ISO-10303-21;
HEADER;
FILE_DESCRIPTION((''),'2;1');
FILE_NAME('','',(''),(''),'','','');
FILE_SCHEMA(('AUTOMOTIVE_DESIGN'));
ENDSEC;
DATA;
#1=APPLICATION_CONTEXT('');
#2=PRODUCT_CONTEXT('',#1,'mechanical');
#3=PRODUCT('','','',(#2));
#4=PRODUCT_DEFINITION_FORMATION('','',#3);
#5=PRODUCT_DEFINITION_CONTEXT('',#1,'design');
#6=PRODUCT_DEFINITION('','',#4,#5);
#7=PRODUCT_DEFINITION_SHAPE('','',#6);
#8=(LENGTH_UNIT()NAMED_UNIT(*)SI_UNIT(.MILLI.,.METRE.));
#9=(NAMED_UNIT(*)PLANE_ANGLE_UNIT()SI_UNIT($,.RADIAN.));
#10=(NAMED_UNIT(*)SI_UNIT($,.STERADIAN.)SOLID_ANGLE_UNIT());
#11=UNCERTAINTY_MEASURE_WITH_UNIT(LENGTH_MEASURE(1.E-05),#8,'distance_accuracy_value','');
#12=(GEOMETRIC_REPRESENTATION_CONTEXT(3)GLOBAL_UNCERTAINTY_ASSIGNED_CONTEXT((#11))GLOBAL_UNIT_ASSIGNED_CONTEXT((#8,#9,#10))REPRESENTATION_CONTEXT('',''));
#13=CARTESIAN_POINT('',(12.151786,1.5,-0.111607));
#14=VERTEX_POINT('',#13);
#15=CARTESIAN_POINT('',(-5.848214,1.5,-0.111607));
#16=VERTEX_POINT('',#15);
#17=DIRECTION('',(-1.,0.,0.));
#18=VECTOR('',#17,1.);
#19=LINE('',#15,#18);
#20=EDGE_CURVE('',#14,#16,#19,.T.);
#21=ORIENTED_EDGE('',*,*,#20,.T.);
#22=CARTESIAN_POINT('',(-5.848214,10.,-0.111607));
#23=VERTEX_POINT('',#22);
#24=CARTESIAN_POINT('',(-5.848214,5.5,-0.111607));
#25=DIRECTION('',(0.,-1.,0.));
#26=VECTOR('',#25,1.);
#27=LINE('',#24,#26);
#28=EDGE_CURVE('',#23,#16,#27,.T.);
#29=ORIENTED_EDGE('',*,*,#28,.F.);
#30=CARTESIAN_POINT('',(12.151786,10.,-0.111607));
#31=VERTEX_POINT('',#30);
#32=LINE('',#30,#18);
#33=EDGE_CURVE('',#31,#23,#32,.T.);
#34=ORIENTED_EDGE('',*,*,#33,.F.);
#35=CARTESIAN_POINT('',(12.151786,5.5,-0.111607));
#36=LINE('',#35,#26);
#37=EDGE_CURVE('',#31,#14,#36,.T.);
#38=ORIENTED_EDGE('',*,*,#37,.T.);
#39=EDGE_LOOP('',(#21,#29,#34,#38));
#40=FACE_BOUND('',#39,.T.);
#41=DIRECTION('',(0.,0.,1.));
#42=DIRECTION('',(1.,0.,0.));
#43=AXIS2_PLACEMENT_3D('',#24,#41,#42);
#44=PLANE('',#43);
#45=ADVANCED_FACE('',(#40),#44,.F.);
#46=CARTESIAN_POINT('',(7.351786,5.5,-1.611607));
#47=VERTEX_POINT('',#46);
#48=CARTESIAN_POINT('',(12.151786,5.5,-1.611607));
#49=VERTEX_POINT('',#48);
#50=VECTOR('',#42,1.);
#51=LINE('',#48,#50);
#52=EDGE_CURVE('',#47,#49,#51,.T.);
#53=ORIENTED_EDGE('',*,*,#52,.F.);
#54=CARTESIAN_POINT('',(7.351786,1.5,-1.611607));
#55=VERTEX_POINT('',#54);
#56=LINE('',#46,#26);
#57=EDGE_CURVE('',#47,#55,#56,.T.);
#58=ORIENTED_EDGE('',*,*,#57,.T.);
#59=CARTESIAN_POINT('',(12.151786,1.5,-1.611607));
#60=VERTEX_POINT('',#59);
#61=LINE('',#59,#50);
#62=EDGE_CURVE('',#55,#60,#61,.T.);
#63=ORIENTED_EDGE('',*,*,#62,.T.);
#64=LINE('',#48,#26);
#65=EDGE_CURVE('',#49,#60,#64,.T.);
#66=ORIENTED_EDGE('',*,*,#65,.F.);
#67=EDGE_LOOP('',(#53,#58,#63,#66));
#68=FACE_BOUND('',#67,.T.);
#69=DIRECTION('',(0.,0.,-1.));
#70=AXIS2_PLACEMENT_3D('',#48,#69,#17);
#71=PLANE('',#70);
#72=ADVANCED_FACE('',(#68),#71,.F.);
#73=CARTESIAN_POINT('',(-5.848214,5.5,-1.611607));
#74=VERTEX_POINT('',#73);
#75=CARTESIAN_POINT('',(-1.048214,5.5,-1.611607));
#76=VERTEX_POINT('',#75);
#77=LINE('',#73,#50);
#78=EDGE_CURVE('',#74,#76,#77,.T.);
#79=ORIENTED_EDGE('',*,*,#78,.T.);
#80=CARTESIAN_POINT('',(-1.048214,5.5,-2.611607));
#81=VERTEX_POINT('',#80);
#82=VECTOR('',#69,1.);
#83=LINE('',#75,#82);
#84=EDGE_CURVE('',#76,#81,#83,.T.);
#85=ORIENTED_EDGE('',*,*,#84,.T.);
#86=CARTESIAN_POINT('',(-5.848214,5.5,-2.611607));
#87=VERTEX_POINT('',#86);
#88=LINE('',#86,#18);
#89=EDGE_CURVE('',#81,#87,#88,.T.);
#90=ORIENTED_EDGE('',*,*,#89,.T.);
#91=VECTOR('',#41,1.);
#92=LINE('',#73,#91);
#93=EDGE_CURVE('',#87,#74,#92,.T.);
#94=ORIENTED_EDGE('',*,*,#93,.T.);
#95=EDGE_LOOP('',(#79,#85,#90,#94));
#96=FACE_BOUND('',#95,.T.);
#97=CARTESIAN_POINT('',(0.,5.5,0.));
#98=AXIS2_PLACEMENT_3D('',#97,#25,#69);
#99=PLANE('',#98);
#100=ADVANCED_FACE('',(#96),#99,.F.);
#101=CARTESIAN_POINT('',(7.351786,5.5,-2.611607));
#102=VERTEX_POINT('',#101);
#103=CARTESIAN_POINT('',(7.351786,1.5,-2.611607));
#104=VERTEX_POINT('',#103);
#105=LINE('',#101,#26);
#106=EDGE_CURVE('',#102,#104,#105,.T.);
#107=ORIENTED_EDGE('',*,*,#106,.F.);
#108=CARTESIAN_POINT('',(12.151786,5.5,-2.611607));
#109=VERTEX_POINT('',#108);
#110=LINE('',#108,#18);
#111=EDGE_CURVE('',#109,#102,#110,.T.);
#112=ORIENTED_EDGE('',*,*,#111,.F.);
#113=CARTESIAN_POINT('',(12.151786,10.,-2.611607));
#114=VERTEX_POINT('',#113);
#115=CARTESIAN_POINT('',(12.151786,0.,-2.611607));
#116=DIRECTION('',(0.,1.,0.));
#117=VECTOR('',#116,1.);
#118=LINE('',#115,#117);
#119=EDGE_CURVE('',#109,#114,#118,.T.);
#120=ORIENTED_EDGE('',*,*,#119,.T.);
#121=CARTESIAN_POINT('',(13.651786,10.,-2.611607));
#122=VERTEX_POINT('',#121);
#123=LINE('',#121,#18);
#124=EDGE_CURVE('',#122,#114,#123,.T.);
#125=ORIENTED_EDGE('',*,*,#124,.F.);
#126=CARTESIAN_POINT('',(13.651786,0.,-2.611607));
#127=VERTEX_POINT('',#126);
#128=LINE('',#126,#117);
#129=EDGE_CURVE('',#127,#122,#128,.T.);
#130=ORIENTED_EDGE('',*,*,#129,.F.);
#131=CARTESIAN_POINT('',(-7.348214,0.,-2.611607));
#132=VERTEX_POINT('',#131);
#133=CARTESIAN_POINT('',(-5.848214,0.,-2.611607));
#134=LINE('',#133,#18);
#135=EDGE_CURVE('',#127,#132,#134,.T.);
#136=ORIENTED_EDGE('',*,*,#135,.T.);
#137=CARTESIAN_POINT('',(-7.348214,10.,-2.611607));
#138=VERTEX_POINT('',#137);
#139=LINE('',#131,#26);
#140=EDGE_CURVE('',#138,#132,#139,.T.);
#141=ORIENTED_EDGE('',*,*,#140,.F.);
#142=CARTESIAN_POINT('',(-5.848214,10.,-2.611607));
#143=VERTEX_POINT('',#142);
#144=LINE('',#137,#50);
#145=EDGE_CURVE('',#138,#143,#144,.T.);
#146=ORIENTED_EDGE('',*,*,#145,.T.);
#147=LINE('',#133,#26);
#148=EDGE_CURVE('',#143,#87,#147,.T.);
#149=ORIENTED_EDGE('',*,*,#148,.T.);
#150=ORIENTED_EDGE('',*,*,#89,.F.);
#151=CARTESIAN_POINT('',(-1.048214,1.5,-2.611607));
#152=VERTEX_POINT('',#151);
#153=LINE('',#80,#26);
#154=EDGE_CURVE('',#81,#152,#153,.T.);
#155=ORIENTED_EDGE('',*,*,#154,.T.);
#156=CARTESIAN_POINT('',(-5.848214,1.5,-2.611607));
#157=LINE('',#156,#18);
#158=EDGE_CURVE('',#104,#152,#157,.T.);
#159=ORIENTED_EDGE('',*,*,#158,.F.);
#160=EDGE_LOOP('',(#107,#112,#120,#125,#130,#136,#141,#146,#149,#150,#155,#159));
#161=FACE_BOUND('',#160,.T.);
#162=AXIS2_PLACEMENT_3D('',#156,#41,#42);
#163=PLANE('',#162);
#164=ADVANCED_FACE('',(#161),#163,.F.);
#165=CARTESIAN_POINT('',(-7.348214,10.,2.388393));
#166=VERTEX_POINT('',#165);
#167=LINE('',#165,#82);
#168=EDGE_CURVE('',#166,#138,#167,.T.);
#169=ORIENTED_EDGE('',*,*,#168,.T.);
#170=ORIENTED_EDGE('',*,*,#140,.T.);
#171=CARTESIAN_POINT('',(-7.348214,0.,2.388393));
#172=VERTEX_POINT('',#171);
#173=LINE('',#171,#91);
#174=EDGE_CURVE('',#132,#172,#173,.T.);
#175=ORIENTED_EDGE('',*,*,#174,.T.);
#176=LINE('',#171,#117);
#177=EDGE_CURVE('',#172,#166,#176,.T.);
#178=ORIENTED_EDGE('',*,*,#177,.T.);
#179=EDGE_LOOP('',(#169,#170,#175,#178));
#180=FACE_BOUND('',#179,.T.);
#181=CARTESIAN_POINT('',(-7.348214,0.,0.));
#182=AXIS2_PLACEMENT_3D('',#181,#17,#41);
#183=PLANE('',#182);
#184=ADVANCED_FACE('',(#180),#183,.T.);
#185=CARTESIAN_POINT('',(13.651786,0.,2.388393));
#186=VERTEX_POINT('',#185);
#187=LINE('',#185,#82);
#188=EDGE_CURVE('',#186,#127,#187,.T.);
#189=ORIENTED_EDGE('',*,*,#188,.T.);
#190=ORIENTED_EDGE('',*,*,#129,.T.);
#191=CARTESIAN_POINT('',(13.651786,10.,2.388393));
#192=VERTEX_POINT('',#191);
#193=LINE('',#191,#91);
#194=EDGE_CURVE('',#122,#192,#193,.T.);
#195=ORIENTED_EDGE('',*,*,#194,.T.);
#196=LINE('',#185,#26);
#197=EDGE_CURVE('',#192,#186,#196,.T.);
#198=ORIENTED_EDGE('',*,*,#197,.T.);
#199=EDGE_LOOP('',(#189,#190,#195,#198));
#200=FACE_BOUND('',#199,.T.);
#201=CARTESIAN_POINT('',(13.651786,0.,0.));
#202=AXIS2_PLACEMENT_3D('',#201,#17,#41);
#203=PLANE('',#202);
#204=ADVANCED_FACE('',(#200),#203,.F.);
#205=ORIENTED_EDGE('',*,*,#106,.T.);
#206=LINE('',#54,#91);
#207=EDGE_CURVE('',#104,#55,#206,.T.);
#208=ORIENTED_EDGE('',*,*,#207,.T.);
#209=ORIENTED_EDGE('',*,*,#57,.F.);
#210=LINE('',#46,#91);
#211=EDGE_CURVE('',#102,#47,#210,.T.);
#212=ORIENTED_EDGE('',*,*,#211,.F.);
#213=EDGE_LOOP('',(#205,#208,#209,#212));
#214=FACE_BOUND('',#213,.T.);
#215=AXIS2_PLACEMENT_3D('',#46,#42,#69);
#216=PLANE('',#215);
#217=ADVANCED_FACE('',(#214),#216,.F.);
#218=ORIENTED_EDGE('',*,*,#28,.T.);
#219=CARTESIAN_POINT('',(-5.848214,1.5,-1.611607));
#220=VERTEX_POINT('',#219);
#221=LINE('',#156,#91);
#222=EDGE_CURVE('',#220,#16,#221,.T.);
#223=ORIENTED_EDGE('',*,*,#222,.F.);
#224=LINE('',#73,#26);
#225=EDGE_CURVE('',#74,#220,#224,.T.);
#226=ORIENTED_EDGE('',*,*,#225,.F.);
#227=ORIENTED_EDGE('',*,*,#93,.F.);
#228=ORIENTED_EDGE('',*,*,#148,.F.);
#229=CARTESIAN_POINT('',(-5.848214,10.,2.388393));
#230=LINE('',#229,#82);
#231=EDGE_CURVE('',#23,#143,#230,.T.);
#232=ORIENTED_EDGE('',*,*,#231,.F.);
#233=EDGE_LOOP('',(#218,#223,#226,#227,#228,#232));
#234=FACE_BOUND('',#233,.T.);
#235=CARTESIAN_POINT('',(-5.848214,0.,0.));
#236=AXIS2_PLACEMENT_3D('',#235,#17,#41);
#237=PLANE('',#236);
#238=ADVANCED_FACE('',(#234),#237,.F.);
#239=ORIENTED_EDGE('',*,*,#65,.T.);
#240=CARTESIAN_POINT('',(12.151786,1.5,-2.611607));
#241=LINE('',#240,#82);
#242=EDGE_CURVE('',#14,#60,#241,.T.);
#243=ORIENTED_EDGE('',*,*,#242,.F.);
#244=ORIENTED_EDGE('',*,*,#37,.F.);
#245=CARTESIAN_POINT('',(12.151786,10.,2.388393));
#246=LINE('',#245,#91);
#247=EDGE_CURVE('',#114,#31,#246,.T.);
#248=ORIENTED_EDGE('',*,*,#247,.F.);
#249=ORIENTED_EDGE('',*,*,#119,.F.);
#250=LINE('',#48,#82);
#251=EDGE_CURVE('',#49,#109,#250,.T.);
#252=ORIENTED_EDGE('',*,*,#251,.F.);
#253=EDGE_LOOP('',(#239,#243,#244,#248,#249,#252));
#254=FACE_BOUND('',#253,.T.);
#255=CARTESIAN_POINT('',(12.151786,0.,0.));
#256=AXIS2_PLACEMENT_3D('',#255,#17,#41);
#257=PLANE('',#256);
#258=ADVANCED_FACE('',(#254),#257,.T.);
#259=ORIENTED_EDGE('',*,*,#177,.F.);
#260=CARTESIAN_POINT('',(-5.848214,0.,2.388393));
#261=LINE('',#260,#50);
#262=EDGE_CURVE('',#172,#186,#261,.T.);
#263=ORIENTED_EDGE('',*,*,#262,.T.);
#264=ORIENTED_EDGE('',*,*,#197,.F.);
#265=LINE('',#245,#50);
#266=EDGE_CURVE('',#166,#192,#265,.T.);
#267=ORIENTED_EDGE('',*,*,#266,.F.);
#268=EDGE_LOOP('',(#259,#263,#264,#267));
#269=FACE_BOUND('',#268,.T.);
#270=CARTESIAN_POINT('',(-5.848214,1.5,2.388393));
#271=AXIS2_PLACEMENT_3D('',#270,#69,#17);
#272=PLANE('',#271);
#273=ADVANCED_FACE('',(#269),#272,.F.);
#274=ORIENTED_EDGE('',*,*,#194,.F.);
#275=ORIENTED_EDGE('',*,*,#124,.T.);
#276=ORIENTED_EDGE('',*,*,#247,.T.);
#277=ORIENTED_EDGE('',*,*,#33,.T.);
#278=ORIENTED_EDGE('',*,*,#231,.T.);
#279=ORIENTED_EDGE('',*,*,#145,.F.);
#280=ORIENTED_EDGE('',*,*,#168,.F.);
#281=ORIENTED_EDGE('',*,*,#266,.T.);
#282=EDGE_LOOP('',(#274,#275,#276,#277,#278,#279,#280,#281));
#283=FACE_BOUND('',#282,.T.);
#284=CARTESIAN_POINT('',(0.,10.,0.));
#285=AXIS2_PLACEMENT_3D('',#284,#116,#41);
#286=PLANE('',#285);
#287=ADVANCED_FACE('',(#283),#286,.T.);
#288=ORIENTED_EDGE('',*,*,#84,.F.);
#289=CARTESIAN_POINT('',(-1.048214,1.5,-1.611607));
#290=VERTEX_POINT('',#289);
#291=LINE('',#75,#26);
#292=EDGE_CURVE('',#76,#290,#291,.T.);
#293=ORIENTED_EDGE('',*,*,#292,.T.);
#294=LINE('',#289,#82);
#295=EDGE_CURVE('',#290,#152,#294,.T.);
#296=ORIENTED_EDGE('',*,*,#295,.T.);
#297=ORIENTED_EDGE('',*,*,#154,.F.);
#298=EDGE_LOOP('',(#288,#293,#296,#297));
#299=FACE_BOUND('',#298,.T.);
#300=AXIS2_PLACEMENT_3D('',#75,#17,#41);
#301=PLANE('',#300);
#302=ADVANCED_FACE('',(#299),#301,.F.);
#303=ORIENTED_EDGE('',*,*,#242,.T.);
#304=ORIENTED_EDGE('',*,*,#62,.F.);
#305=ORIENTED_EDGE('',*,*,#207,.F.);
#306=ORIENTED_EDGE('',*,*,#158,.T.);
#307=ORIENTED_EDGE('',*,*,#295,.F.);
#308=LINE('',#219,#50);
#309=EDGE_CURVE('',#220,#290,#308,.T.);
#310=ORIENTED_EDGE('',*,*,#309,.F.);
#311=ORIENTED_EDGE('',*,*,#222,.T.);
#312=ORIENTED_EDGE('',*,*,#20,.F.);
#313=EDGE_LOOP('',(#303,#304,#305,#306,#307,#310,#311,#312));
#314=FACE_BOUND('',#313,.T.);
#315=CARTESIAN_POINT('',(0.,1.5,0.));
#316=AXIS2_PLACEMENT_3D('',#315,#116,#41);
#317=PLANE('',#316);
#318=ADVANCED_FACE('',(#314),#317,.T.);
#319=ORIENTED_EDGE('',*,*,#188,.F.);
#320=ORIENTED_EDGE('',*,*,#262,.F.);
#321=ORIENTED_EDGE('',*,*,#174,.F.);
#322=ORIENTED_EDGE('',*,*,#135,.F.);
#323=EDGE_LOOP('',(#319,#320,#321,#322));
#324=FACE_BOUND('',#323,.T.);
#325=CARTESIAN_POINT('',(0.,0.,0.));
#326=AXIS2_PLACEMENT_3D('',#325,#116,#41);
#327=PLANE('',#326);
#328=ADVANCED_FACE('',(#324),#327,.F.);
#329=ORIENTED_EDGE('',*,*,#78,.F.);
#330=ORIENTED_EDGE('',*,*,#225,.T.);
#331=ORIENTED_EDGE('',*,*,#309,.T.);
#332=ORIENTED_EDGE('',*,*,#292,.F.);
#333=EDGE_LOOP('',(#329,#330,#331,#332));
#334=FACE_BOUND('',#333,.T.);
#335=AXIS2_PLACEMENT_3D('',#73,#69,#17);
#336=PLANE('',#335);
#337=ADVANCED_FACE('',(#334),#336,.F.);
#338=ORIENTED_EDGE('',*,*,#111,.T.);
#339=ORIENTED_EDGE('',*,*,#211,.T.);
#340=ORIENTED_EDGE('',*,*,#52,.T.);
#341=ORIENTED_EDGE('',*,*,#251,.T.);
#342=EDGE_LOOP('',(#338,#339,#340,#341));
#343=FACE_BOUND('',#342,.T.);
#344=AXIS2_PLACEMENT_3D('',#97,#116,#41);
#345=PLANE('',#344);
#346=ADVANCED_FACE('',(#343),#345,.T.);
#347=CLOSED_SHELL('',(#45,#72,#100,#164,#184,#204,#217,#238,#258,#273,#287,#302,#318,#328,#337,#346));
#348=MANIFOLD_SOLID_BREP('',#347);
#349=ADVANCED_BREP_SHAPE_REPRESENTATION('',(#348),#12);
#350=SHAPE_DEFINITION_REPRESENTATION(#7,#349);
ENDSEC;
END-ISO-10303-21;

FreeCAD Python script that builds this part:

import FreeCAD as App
import Part
import Sketcher

V = App.Vector
Q = App.Units.Quantity

doc = App.newDocument("Part")
body = doc.addObject("PartDesign::Body", "Body")

# Sketch on XZ plane
sketch1 = body.newObject("Sketcher::SketchObject", "Sketch")
sketch1.AttachmentSupport = (doc.getObject("XZ_Plane"), [""])
sketch1.MapMode = "FlatFace"
sketch1.addGeometry(Part.LineSegment(V(-6, -3, 0), V(-6, 2, 0)), False)
sketch1.addGeometry(Part.LineSegment(V(-6, 2, 0), V(12, 2, 0)), False)
sketch1.addGeometry(Part.LineSegment(V(12, 2, 0), V(12, -3, 0)), False)
sketch1.addGeometry(Part.LineSegment(V(12, -3, 0), V(-6, -3, 0)), False)
sketch1.addConstraint(Sketcher.Constraint("Coincident", 0, 2, 1, 1))
sketch1.addConstraint(Sketcher.Constraint("Coincident", 1, 2, 2, 1))
sketch1.addConstraint(Sketcher.Constraint("Coincident", 2, 2, 3, 1))
sketch1.addConstraint(Sketcher.Constraint("Coincident", 3, 2, 0, 1))
sketch1.addConstraint(Sketcher.Constraint("Vertical", 0))
sketch1.addConstraint(Sketcher.Constraint("Horizontal", 1))
sketch1.addConstraint(Sketcher.Constraint("Vertical", 2))
sketch1.addConstraint(Sketcher.Constraint("Horizontal", 3))
sketch1.addConstraint(Sketcher.Constraint("DistanceX", 1, 1, 1, 2, Q("18 mm")))
sketch1.addConstraint(Sketcher.Constraint("DistanceY", 0, 1, 0, 2, Q("5 mm")))
sketch1.addConstraint(Sketcher.Constraint("DistanceX", 0, 2, -1, 1, Q("5.848214 mm")))
sketch1.addConstraint(Sketcher.Constraint("DistanceY", -1, 1, 0, 2, Q("2.388393 mm")))
pad1 = body.newObject("PartDesign::Pad", "Pad")
pad1.Profile = sketch1
pad1.Length = 1.5
pad1.Reversed = True

# Sketch on XZ plane
sketch2 = body.newObject("Sketcher::SketchObject", "Sketch001")
sketch2.AttachmentSupport = (doc.getObject("XZ_Plane"), [""])
sketch2.MapMode = "FlatFace"
sketch2.AttachmentOffset = App.Placement(V(0, 0, -1.5), App.Rotation())
sketch2.addGeometry(Part.LineSegment(V(-5.8, -0.1, 0), V(-5.8, 2.4, 0)), False)
sketch2.addGeometry(Part.LineSegment(V(-5.8, 2.4, 0), V(12.2, 2.4, 0)), False)
sketch2.addGeometry(Part.LineSegment(V(12.2, 2.4, 0), V(12.2, -0.1, 0)), False)
sketch2.addGeometry(Part.LineSegment(V(12.2, -0.1, 0), V(-5.8, -0.1, 0)), False)
sketch2.addGeometry(Part.LineSegment(V(-5.8, -2.6, 0), V(-5.8, -1.6, 0)), False)
sketch2.addGeometry(Part.LineSegment(V(-5.8, -1.6, 0), V(-1, -1.6, 0)), False)
sketch2.addGeometry(Part.LineSegment(V(-1, -1.6, 0), V(-1, -2.6, 0)), False)
sketch2.addGeometry(Part.LineSegment(V(-1, -2.6, 0), V(-5.8, -2.6, 0)), False)
sketch2.addGeometry(Part.LineSegment(V(7.4, -2.6, 0), V(7.4, -1.6, 0)), False)
sketch2.addGeometry(Part.LineSegment(V(7.4, -1.6, 0), V(12.2, -1.6, 0)), False)
sketch2.addGeometry(Part.LineSegment(V(12.2, -1.6, 0), V(12.2, -2.6, 0)), False)
sketch2.addGeometry(Part.LineSegment(V(12.2, -2.6, 0), V(7.4, -2.6, 0)), False)
sketch2.addConstraint(Sketcher.Constraint("Coincident", 0, 2, 1, 1))
sketch2.addConstraint(Sketcher.Constraint("Coincident", 1, 2, 2, 1))
sketch2.addConstraint(Sketcher.Constraint("Coincident", 2, 2, 3, 1))
sketch2.addConstraint(Sketcher.Constraint("Coincident", 3, 2, 0, 1))
sketch2.addConstraint(Sketcher.Constraint("Coincident", 4, 2, 5, 1))
sketch2.addConstraint(Sketcher.Constraint("Coincident", 5, 2, 6, 1))
sketch2.addConstraint(Sketcher.Constraint("Coincident", 6, 2, 7, 1))
sketch2.addConstraint(Sketcher.Constraint("Coincident", 7, 2, 4, 1))
sketch2.addConstraint(Sketcher.Constraint("Coincident", 8, 2, 9, 1))
sketch2.addConstraint(Sketcher.Constraint("Coincident", 9, 2, 10, 1))
sketch2.addConstraint(Sketcher.Constraint("Coincident", 10, 2, 11, 1))
sketch2.addConstraint(Sketcher.Constraint("Coincident", 11, 2, 8, 1))
sketch2.addConstraint(Sketcher.Constraint("Vertical", 0))
sketch2.addConstraint(Sketcher.Constraint("Horizontal", 1))
sketch2.addConstraint(Sketcher.Constraint("Vertical", 2))
sketch2.addConstraint(Sketcher.Constraint("Horizontal", 3))
sketch2.addConstraint(Sketcher.Constraint("Vertical", 4))
sketch2.addConstraint(Sketcher.Constraint("Horizontal", 5))
sketch2.addConstraint(Sketcher.Constraint("Vertical", 6))
sketch2.addConstraint(Sketcher.Constraint("Horizontal", 7))
sketch2.addConstraint(Sketcher.Constraint("Vertical", 8))
sketch2.addConstraint(Sketcher.Constraint("Horizontal", 9))
sketch2.addConstraint(Sketcher.Constraint("Vertical", 10))
sketch2.addConstraint(Sketcher.Constraint("Horizontal", 11))
sketch2.addConstraint(Sketcher.Constraint("Horizontal", 5, 2, 8, 2))
sketch2.addConstraint(Sketcher.Constraint("Horizontal", 7, 2, 10, 2))
sketch2.addConstraint(Sketcher.Constraint("Vertical", 3, 2, 4, 2))
sketch2.addConstraint(Sketcher.Constraint("Vertical", 2, 2, 9, 2))
sketch2.addConstraint(Sketcher.Constraint("Equal", 7, 9))
sketch2.addConstraint(Sketcher.Constraint("DistanceX", 1, 1, 1, 2, Q("18 mm")))
sketch2.addConstraint(Sketcher.Constraint("DistanceY", 4, 1, 4, 2, Q("1 mm")))
sketch2.addConstraint(Sketcher.Constraint("DistanceX", 5, 1, 5, 2, Q("4.8 mm")))
sketch2.addConstraint(Sketcher.Constraint("DistanceY", 0, 1, 0, 2, Q("2.5 mm")))
sketch2.addConstraint(Sketcher.Constraint("DistanceY", 4, 2, 0, 2, Q("4 mm")))
sketch2.addConstraint(Sketcher.Constraint("DistanceX", 0, 2, -1, 1, Q("5.848214 mm")))
sketch2.addConstraint(Sketcher.Constraint("DistanceY", -1, 1, 0, 2, Q("2.388393 mm")))
pad2 = body.newObject("PartDesign::Pad", "Pad001")
pad2.Profile = sketch2
pad2.Length = 4
pad2.Reversed = True

# Sketch on XZ plane
sketch3 = body.newObject("Sketcher::SketchObject", "Sketch002")
sketch3.AttachmentSupport = (doc.getObject("XZ_Plane"), [""])
sketch3.MapMode = "FlatFace"
sketch3.AttachmentOffset = App.Placement(V(0, 0, -5.5), App.Rotation())
sketch3.addGeometry(Part.LineSegment(V(-5.8, -0.1, 0), V(-5.8, 2.4, 0)), False)
sketch3.addGeometry(Part.LineSegment(V(-5.8, 2.4, 0), V(12.2, 2.4, 0)), False)
sketch3.addGeometry(Part.LineSegment(V(12.2, 2.4, 0), V(12.2, -0.1, 0)), False)
sketch3.addGeometry(Part.LineSegment(V(12.2, -0.1, 0), V(-5.8, -0.1, 0)), False)
sketch3.addConstraint(Sketcher.Constraint("Coincident", 0, 2, 1, 1))
sketch3.addConstraint(Sketcher.Constraint("Coincident", 1, 2, 2, 1))
sketch3.addConstraint(Sketcher.Constraint("Coincident", 2, 2, 3, 1))
sketch3.addConstraint(Sketcher.Constraint("Coincident", 3, 2, 0, 1))
sketch3.addConstraint(Sketcher.Constraint("Vertical", 0))
sketch3.addConstraint(Sketcher.Constraint("Horizontal", 1))
sketch3.addConstraint(Sketcher.Constraint("Vertical", 2))
sketch3.addConstraint(Sketcher.Constraint("Horizontal", 3))
sketch3.addConstraint(Sketcher.Constraint("DistanceX", 1, 1, 1, 2, Q("18 mm")))
sketch3.addConstraint(Sketcher.Constraint("DistanceY", 0, 1, 0, 2, Q("2.5 mm")))
sketch3.addConstraint(Sketcher.Constraint("DistanceX", 0, 2, -1, 1, Q("5.848214 mm")))
sketch3.addConstraint(Sketcher.Constraint("DistanceY", -1, 1, 0, 2, Q("2.388393 mm")))
pad3 = body.newObject("PartDesign::Pad", "Pad002")
pad3.Profile = sketch3
pad3.Length = 4.5
pad3.Reversed = True

# Sketch on YZ plane
sketch4 = body.newObject("Sketcher::SketchObject", "Sketch003")
sketch4.AttachmentSupport = (doc.getObject("YZ_Plane"), [""])
sketch4.MapMode = "FlatFace"
sketch4.AttachmentOffset = App.Placement(V(0, 0, 12.151786), App.Rotation())
sketch4.addGeometry(Part.LineSegment(V(10, 2, 0), V(0, 2, 0)), False)
sketch4.addGeometry(Part.LineSegment(V(0, 2, 0), V(0, -3, 0)), False)
sketch4.addGeometry(Part.LineSegment(V(0, -3, 0), V(10, -3, 0)), False)
sketch4.addGeometry(Part.LineSegment(V(10, -3, 0), V(10, 2, 0)), False)
sketch4.addConstraint(Sketcher.Constraint("Coincident", 0, 2, 1, 1))
sketch4.addConstraint(Sketcher.Constraint("Coincident", 1, 2, 2, 1))
sketch4.addConstraint(Sketcher.Constraint("Coincident", 2, 2, 3, 1))
sketch4.addConstraint(Sketcher.Constraint("Coincident", 3, 2, 0, 1))
sketch4.addConstraint(Sketcher.Constraint("Horizontal", 0))
sketch4.addConstraint(Sketcher.Constraint("Vertical", 1))
sketch4.addConstraint(Sketcher.Constraint("Horizontal", 2))
sketch4.addConstraint(Sketcher.Constraint("Vertical", 3))
sketch4.addConstraint(Sketcher.Constraint("PointOnObject", 0, 2, -2))
sketch4.addConstraint(Sketcher.Constraint("DistanceX", 0, 2, 0, 1, Q("10 mm")))
sketch4.addConstraint(Sketcher.Constraint("DistanceY", 1, 2, 1, 1, Q("5 mm")))
sketch4.addConstraint(Sketcher.Constraint("DistanceY", -1, 1, 0, 2, Q("2.388393 mm")))
pad4 = body.newObject("PartDesign::Pad", "Pad003")
pad4.Profile = sketch4
pad4.Length = 1.5

# Sketch on YZ plane
sketch5 = body.newObject("Sketcher::SketchObject", "Sketch004")
sketch5.AttachmentSupport = (doc.getObject("YZ_Plane"), [""])
sketch5.MapMode = "FlatFace"
sketch5.AttachmentOffset = App.Placement(V(0, 0, -5.848214), App.Rotation())
sketch5.addGeometry(Part.LineSegment(V(10, -3, 0), V(0, -3, 0)), False)
sketch5.addGeometry(Part.LineSegment(V(0, -3, 0), V(0, 2, 0)), False)
sketch5.addGeometry(Part.LineSegment(V(0, 2, 0), V(10, 2, 0)), False)
sketch5.addGeometry(Part.LineSegment(V(10, 2, 0), V(10, -3, 0)), False)
sketch5.addConstraint(Sketcher.Constraint("Coincident", 0, 2, 1, 1))
sketch5.addConstraint(Sketcher.Constraint("Coincident", 1, 2, 2, 1))
sketch5.addConstraint(Sketcher.Constraint("Coincident", 2, 2, 3, 1))
sketch5.addConstraint(Sketcher.Constraint("Coincident", 3, 2, 0, 1))
sketch5.addConstraint(Sketcher.Constraint("Horizontal", 0))
sketch5.addConstraint(Sketcher.Constraint("Vertical", 1))
sketch5.addConstraint(Sketcher.Constraint("Horizontal", 2))
sketch5.addConstraint(Sketcher.Constraint("Vertical", 3))
sketch5.addConstraint(Sketcher.Constraint("PointOnObject", 0, 2, -2))
sketch5.addConstraint(Sketcher.Constraint("DistanceX", 0, 2, 0, 1, Q("10 mm")))
sketch5.addConstraint(Sketcher.Constraint("DistanceY", 1, 1, 1, 2, Q("5 mm")))
sketch5.addConstraint(Sketcher.Constraint("DistanceY", 0, 2, -1, 1, Q("2.611607 mm")))
pad5 = body.newObject("PartDesign::Pad", "Pad004")
pad5.Profile = sketch5
pad5.Length = 1.5
pad5.Reversed = True

doc.recompute()
